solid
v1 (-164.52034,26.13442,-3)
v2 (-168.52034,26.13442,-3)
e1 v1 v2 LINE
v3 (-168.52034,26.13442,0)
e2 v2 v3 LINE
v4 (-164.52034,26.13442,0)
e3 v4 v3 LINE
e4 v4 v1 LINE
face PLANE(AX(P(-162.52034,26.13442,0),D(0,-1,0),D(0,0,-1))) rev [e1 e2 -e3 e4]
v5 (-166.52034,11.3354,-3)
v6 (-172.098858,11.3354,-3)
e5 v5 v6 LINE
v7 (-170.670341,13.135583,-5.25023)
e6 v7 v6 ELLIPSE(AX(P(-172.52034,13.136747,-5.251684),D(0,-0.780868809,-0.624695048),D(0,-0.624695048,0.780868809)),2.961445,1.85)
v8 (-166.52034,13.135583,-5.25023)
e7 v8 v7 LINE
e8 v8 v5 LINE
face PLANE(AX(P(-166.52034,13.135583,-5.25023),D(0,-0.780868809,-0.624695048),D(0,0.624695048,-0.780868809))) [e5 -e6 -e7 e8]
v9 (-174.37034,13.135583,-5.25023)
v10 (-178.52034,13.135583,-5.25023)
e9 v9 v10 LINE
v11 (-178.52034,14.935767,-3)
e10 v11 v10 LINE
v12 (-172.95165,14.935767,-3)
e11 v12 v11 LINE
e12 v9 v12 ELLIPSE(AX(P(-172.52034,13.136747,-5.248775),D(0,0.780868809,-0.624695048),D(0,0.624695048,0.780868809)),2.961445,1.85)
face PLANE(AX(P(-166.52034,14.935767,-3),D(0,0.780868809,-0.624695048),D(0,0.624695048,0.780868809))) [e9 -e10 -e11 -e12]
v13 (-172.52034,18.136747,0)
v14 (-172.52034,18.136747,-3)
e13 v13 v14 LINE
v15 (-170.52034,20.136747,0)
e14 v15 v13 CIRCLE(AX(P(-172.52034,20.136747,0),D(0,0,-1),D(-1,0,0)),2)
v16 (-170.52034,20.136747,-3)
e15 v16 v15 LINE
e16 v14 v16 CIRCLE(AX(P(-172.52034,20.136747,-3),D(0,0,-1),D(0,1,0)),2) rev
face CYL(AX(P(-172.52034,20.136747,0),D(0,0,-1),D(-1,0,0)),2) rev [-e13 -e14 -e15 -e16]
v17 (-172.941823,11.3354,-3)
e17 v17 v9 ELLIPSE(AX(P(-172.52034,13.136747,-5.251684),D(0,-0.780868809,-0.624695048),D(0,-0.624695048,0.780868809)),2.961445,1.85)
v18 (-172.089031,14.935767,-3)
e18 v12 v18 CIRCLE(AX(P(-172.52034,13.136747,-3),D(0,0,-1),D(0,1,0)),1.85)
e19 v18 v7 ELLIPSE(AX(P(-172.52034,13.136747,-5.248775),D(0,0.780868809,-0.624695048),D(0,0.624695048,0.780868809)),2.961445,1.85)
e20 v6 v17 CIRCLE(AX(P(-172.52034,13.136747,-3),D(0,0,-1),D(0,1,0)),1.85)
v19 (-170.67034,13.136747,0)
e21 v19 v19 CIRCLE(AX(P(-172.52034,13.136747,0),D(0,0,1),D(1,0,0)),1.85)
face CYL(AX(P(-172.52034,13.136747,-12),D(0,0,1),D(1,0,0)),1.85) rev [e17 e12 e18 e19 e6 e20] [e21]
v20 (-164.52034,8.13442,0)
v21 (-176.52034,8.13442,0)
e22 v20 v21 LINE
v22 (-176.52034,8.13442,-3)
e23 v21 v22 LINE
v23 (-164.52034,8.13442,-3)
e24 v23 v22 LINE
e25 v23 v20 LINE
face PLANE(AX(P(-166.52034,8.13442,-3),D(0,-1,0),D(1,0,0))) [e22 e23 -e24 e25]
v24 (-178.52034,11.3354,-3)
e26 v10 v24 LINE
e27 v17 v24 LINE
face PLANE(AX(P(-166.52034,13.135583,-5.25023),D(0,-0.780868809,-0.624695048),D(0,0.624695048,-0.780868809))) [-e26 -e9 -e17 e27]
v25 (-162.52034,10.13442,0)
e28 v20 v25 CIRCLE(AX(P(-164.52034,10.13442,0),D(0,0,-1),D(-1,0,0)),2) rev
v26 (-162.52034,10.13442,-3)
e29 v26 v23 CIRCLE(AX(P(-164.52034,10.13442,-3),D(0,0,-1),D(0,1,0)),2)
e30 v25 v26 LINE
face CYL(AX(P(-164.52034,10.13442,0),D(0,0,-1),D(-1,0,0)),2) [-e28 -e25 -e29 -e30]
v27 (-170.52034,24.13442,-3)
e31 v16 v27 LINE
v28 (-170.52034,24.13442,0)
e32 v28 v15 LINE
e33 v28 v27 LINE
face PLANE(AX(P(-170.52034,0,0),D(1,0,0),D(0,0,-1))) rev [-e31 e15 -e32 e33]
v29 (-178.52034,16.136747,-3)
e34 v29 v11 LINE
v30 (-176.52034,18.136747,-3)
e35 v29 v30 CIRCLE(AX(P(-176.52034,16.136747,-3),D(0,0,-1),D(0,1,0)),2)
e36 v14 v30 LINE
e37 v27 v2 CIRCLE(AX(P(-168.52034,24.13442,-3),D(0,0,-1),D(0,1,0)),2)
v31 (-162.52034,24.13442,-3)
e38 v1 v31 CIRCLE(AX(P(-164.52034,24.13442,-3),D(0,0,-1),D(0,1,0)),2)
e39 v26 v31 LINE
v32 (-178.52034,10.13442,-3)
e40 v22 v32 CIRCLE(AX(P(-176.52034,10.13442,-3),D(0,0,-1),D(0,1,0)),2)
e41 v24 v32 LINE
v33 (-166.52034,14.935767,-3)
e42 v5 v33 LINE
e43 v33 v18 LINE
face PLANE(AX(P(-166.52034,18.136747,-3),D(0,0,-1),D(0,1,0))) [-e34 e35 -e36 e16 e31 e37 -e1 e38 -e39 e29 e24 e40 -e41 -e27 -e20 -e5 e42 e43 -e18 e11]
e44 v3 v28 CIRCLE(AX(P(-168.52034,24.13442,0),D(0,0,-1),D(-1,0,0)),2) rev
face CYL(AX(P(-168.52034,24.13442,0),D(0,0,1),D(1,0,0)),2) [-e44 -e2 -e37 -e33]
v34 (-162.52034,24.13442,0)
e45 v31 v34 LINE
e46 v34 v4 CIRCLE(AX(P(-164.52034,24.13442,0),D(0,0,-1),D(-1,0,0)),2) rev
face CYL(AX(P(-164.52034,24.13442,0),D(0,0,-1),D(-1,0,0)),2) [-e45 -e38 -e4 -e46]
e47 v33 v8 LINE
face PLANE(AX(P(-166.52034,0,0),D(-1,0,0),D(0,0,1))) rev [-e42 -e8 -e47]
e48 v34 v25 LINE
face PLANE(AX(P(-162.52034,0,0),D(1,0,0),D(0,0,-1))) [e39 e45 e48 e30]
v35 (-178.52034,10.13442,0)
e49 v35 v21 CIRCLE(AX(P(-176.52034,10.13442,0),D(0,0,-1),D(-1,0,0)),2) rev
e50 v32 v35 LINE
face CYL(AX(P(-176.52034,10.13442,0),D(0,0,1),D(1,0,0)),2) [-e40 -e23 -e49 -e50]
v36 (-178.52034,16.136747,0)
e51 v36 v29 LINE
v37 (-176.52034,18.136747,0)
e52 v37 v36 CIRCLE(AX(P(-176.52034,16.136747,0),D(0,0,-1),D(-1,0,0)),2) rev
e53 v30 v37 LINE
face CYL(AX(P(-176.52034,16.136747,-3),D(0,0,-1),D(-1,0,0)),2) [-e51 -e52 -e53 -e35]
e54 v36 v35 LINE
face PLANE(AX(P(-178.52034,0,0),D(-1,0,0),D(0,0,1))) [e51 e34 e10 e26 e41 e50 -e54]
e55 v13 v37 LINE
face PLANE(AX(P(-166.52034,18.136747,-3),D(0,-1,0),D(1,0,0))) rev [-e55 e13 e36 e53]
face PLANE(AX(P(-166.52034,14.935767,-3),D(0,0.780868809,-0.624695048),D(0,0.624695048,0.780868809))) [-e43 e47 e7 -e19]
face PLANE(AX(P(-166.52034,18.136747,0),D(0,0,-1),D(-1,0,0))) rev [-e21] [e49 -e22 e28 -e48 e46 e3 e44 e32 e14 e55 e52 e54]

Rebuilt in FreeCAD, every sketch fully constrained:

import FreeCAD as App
import Part
import Sketcher
Q = App.Units.Quantity


def edges_at(feature, points):
    """Names of the edges that pass closest to the given points."""
    edges = feature.Shape.Edges
    near = lambda p: min(range(len(edges)), key=lambda i: edges[i].distToShape(Part.Vertex(*p))[0])
    return sorted({f"Edge{near(p) + 1}" for p in points})

doc = App.newDocument("Part")
params = doc.addObject("Spreadsheet::Sheet", "Params")
for row, (alias, value) in enumerate([
    ("sketch1_height", "3 mm"),
    ("pad1_length", "12 mm"),
    ("sketch2_diameter", "3.7 mm"),
    ("pocket1_length", "12 mm"),
    ("sketch3_width", "18 mm"),
    ("sketch3_height", "3 mm"),
    ("pad2_length", "8 mm"),
    ("fillet_radius", "2 mm"),
], start=1):
    params.set(f"A{row}", alias)
    params.set(f"B{row}", "=" + value)
    params.setAlias(f"B{row}", alias)

body = doc.addObject("PartDesign::Body", "Body")

sketch1 = doc.addObject("Sketcher::SketchObject", "Sketch")
body.addObject(sketch1)
sketch1.AttachmentSupport = (doc.YZ_Plane, [""])
sketch1.MapMode = "FlatFace"
sketch1.AttachmentOffset = App.Placement(App.Vector(0, 0, -178.52034), App.Rotation())
sketch1.addGeometry(Part.LineSegment(App.Vector(14.9, -3, 0), App.Vector(13.1, -5.3, 0)), False)
sketch1.addGeometry(Part.LineSegment(App.Vector(13.1, -5.3, 0), App.Vector(11.3, -3, 0)), False)
sketch1.addGeometry(Part.LineSegment(App.Vector(11.3, -3, 0), App.Vector(8.1, -3, 0)), False)
sketch1.addGeometry(Part.LineSegment(App.Vector(8.1, -3, 0), App.Vector(8.1, 0, 0)), False)
sketch1.addGeometry(Part.LineSegment(App.Vector(8.1, 0, 0), App.Vector(18.1, 0, 0)), False)
sketch1.addGeometry(Part.LineSegment(App.Vector(18.1, 0, 0), App.Vector(18.1, -3, 0)), False)
sketch1.addGeometry(Part.LineSegment(App.Vector(18.1, -3, 0), App.Vector(14.9, -3, 0)), False)
sketch1.addConstraint(Sketcher.Constraint("Coincident", 0, 2, 1, 1))
sketch1.addConstraint(Sketcher.Constraint("Coincident", 1, 2, 2, 1))
sketch1.addConstraint(Sketcher.Constraint("Coincident", 2, 2, 3, 1))
sketch1.addConstraint(Sketcher.Constraint("Coincident", 3, 2, 4, 1))
sketch1.addConstraint(Sketcher.Constraint("Coincident", 4, 2, 5, 1))
sketch1.addConstraint(Sketcher.Constraint("Coincident", 5, 2, 6, 1))
sketch1.addConstraint(Sketcher.Constraint("Coincident", 6, 2, 0, 1))
sketch1.addConstraint(Sketcher.Constraint("Horizontal", 2))
sketch1.addConstraint(Sketcher.Constraint("Vertical", 3))
sketch1.addConstraint(Sketcher.Constraint("Horizontal", 4))
sketch1.addConstraint(Sketcher.Constraint("Vertical", 5))
sketch1.addConstraint(Sketcher.Constraint("Horizontal", 6))
sketch1.addConstraint(Sketcher.Constraint("PointOnObject", 3, 2, -1))
sketch1.addConstraint(Sketcher.Constraint("Horizontal", 2, 2, 5, 2))
sketch1.addConstraint(Sketcher.Constraint("Equal", 2, 6))
sketch1.addConstraint(Sketcher.Constraint("Equal", 0, 1))
sketch1.addConstraint(Sketcher.Constraint("DistanceY", 3, 1, 3, 2, Q("3 mm")))
sketch1.addConstraint(Sketcher.Constraint("Distance", 0, Q("2.8817 mm")))
sketch1.addConstraint(Sketcher.Constraint("DistanceX", 2, 2, 2, 1, Q("3.20098 mm")))
sketch1.addConstraint(Sketcher.Constraint("DistanceX", -1, 1, 1, 2, Q("11.3354 mm")))
sketch1.addConstraint(Sketcher.Constraint("DistanceX", 4, 1, 4, 2, Q("10.002328 mm")))
sketch1.setExpression("Constraints[16]", "Params.sketch1_height")
pad1 = doc.addObject("PartDesign::Pad", "Pad")
body.addObject(pad1)
pad1.Profile = sketch1
pad1.setExpression("Length", "Params.pad1_length")

sketch2 = doc.addObject("Sketcher::SketchObject", "Sketch001")
body.addObject(sketch2)
sketch2.AttachmentSupport = (doc.XY_Plane, [""])
sketch2.MapMode = "FlatFace"
sketch2.addGeometry(Part.Circle(App.Vector(-172.5, 13.1, 0), App.Vector(0, 0, 1), 1.9), False)
sketch2.addConstraint(Sketcher.Constraint("Diameter", 0, Q("3.7 mm")))
sketch2.addConstraint(Sketcher.Constraint("DistanceX", 0, 3, -1, 1, Q("172.52034 mm")))
sketch2.addConstraint(Sketcher.Constraint("DistanceY", -1, 1, 0, 3, Q("13.136747 mm")))
sketch2.setExpression("Constraints[0]", "Params.sketch2_diameter")
pocket1 = doc.addObject("PartDesign::Pocket", "Pocket")
body.addObject(pocket1)
pocket1.Profile = sketch2
pocket1.setExpression("Length", "Params.pocket1_length")

sketch3 = doc.addObject("Sketcher::SketchObject", "Sketch002")
body.addObject(sketch3)
sketch3.AttachmentSupport = (doc.YZ_Plane, [""])
sketch3.MapMode = "FlatFace"
sketch3.AttachmentOffset = App.Placement(App.Vector(0, 0, -166.52034), App.Rotation())
sketch3.addGeometry(Part.LineSegment(App.Vector(26.1, 0, 0), App.Vector(8.1, 0, 0)), False)
sketch3.addGeometry(Part.LineSegment(App.Vector(8.1, 0, 0), App.Vector(8.1, -3, 0)), False)
sketch3.addGeometry(Part.LineSegment(App.Vector(8.1, -3, 0), App.Vector(26.1, -3, 0)), False)
sketch3.addGeometry(Part.LineSegment(App.Vector(26.1, -3, 0), App.Vector(26.1, 0, 0)), False)
sketch3.addConstraint(Sketcher.Constraint("Coincident", 0, 2, 1, 1))
sketch3.addConstraint(Sketcher.Constraint("Coincident", 1, 2, 2, 1))
sketch3.addConstraint(Sketcher.Constraint("Coincident", 2, 2, 3, 1))
sketch3.addConstraint(Sketcher.Constraint("Coincident", 3, 2, 0, 1))
sketch3.addConstraint(Sketcher.Constraint("Horizontal", 0))
sketch3.addConstraint(Sketcher.Constraint("Vertical", 1))
sketch3.addConstraint(Sketcher.Constraint("Horizontal", 2))
sketch3.addConstraint(Sketcher.Constraint("Vertical", 3))
sketch3.addConstraint(Sketcher.Constraint("PointOnObject", 0, 2, -1))
sketch3.addConstraint(Sketcher.Constraint("DistanceX", 0, 2, 0, 1, Q("18 mm")))
sketch3.addConstraint(Sketcher.Constraint("DistanceY", 1, 2, 1, 1, Q("3 mm")))
sketch3.addConstraint(Sketcher.Constraint("DistanceX", -1, 1, 0, 2, Q("8.13442 mm")))
sketch3.setExpression("Constraints[9]", "Params.sketch3_width")
sketch3.setExpression("Constraints[10]", "Params.sketch3_height")
pad2 = doc.addObject("PartDesign::Pad", "Pad001")
body.addObject(pad2)
pad2.Profile = sketch3
pad2.setExpression("Length", "Params.pad2_length")
pad2.Midplane = True
doc.recompute()

fillet = doc.addObject("PartDesign::Fillet", "Fillet")
body.addObject(fillet)
fillet.Base = (pad2, edges_at(pad2, [
    (-170.52, 18.137, -1.5),
    (-170.52, 26.134, -1.5),
    (-162.52, 8.134, -1.5),
    (-162.52, 26.134, -1.5),
    (-178.52, 18.137, -1.5),
    (-178.52, 8.134, -1.5),
]))
fillet.setExpression("Radius", "Params.fillet_radius")

doc.recompute()
